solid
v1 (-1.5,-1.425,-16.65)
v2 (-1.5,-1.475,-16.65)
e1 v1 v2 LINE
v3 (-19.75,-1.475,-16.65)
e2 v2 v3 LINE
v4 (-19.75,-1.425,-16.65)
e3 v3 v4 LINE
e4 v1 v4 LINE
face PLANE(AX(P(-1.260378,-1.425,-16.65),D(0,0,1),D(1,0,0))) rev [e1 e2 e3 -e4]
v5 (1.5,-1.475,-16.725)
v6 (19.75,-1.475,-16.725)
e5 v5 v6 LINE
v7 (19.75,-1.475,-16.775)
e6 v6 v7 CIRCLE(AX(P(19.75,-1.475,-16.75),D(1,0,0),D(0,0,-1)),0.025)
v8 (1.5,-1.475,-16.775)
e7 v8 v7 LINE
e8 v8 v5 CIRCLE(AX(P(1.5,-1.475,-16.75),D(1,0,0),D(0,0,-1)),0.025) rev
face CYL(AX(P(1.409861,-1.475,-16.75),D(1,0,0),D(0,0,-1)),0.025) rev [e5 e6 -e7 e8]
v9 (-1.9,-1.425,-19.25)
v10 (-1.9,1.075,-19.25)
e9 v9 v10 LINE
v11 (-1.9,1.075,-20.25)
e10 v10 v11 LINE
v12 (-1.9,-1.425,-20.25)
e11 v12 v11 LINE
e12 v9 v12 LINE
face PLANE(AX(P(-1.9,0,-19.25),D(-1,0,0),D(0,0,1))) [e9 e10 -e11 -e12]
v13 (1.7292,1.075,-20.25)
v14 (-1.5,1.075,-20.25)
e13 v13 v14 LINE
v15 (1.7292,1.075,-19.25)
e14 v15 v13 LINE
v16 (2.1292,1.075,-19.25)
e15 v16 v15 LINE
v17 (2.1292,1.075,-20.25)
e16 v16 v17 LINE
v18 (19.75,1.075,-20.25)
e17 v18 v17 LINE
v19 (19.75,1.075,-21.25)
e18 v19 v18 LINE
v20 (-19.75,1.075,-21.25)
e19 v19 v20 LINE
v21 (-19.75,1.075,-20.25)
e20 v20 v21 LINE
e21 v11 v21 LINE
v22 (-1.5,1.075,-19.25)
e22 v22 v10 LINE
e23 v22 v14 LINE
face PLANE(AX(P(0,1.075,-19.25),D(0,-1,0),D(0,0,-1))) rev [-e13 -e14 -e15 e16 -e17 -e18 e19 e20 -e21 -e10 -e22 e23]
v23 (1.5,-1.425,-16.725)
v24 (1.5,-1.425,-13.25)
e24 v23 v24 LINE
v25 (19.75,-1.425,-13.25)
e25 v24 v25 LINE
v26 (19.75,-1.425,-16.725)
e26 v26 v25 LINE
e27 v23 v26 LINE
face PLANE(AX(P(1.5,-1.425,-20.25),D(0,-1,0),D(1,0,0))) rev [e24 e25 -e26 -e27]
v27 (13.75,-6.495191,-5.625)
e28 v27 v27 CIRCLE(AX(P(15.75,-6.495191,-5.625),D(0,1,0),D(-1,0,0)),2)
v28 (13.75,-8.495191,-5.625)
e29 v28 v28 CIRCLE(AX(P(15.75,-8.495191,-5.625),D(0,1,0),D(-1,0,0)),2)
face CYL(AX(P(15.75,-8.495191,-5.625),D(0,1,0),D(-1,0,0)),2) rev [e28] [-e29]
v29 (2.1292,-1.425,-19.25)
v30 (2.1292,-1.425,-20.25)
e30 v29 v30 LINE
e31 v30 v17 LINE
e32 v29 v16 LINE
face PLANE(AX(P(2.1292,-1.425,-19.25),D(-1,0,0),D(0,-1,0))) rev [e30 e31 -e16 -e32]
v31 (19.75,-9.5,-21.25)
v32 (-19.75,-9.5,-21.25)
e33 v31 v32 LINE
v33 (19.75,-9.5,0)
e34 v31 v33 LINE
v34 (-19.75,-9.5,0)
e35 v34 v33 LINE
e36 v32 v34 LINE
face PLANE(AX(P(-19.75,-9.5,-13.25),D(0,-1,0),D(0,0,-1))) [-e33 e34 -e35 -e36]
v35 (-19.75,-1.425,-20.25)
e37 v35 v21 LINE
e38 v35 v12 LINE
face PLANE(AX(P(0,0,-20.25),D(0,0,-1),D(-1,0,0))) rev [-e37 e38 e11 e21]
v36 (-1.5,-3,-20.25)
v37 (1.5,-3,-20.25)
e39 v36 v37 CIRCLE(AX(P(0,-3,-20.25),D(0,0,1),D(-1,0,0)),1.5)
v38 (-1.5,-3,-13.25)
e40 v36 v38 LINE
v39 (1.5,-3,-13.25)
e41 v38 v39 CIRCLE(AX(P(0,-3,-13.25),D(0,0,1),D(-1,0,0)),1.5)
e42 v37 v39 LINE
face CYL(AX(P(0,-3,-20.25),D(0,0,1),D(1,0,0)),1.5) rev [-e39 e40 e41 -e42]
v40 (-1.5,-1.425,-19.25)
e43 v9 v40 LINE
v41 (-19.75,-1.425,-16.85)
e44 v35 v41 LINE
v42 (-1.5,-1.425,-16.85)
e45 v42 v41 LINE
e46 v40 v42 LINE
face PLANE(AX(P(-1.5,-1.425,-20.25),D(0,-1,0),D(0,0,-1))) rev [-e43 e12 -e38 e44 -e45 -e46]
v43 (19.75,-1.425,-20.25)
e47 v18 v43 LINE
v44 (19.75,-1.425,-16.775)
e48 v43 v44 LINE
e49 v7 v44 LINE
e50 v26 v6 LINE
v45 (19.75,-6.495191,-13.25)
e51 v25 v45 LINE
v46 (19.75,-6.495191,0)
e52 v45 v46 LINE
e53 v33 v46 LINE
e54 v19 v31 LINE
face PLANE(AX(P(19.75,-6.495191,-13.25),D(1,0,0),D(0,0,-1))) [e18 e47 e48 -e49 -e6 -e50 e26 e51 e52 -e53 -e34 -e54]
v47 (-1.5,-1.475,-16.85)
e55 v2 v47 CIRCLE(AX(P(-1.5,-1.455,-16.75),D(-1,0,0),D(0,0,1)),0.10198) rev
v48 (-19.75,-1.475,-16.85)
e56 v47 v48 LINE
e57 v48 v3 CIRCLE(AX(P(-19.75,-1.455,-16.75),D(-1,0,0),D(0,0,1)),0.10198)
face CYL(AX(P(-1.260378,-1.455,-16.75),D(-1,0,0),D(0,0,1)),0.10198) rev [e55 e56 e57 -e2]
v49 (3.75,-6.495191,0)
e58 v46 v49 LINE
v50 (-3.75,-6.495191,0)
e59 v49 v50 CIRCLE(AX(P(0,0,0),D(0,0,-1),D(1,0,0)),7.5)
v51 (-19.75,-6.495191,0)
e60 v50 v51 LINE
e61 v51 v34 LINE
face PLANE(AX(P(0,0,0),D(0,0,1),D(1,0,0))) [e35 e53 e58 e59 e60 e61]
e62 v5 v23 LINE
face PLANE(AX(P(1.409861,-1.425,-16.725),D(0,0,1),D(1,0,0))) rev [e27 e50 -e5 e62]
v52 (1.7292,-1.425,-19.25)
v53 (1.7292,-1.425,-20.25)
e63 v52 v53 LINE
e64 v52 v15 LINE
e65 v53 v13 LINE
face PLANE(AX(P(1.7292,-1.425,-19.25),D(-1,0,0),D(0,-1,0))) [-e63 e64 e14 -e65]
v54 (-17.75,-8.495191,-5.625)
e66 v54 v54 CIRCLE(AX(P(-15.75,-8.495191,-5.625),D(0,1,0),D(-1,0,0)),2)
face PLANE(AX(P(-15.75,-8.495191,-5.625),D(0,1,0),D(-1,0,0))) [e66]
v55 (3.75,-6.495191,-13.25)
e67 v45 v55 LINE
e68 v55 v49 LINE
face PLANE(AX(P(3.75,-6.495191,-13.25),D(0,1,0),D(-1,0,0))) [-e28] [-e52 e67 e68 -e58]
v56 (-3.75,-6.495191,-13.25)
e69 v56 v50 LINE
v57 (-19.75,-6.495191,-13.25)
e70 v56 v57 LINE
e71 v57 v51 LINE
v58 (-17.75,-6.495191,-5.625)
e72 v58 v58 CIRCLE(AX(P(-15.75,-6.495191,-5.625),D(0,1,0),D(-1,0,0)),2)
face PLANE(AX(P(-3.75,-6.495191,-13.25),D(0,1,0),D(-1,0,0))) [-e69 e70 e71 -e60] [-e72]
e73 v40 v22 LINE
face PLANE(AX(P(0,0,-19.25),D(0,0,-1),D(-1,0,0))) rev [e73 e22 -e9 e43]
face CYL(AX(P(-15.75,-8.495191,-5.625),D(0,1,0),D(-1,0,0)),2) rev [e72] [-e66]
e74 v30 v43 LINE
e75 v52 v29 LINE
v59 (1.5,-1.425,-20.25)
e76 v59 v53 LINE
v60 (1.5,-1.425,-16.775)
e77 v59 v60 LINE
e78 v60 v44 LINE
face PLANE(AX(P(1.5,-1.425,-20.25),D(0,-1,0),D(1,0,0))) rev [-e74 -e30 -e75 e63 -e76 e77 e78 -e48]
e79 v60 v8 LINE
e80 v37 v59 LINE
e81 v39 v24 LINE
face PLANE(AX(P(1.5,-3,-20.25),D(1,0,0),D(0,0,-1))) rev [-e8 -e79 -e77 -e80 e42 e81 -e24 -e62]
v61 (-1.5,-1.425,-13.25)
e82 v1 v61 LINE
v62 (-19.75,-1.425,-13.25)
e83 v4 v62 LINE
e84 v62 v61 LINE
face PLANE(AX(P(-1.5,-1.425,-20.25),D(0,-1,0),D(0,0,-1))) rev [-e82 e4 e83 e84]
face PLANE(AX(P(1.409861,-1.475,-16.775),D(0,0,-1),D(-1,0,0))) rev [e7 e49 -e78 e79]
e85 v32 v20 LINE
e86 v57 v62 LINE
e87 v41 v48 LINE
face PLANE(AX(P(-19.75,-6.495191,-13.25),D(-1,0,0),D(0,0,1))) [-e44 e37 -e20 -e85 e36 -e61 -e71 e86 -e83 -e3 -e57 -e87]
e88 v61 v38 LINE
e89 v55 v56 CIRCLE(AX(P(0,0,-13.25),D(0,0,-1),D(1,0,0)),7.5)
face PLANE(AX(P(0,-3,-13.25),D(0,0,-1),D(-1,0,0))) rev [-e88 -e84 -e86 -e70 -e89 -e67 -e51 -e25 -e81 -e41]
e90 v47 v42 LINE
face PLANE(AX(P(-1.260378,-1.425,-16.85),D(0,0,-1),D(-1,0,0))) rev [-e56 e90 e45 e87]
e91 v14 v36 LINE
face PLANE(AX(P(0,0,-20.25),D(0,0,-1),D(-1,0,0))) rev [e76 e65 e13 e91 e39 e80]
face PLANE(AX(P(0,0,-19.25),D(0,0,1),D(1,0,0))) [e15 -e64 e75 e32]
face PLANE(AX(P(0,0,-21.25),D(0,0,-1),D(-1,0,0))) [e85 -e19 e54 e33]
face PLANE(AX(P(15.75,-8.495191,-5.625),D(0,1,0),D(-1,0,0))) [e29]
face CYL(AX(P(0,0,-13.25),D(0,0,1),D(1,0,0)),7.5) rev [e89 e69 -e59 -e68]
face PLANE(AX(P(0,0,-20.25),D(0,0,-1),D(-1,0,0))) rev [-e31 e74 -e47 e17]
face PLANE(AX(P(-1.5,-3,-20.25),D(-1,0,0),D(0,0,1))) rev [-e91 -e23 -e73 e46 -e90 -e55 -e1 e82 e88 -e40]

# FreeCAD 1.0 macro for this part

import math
import FreeCAD as App
import Part
import Sketcher
Q = App.Units.Quantity

doc = App.newDocument("Part")
body = doc.addObject("PartDesign::Body", "Body")

sketch1 = body.newObject("Sketcher::SketchObject", "Sketch")
sketch1.AttachmentSupport = (doc.getObject("XY_Plane"), [""])
sketch1.MapMode = "FlatFace"
sketch1.addGeometry(Part.LineSegment(App.Vector(-19.8, -9.5, 0), App.Vector(19.8, -9.5, 0)), False)
sketch1.addGeometry(Part.LineSegment(App.Vector(19.8, -9.5, 0), App.Vector(19.8, -6.5, 0)), False)
sketch1.addGeometry(Part.LineSegment(App.Vector(19.8, -6.5, 0), App.Vector(3.8, -6.5, 0)), False)
sketch1.addGeometry(Part.ArcOfCircle(Part.Circle(App.Vector(0, 0, 0), App.Vector(0, 0, 1), 7.5), math.radians(-120), math.radians(-60)), False)
sketch1.addGeometry(Part.LineSegment(App.Vector(-3.8, -6.5, 0), App.Vector(-19.8, -6.5, 0)), False)
sketch1.addGeometry(Part.LineSegment(App.Vector(-19.8, -6.5, 0), App.Vector(-19.8, -9.5, 0)), False)
sketch1.addConstraint(Sketcher.Constraint("Coincident", 0, 2, 1, 1))
sketch1.addConstraint(Sketcher.Constraint("Coincident", 1, 2, 2, 1))
sketch1.addConstraint(Sketcher.Constraint("Coincident", 2, 2, 3, 2))
sketch1.addConstraint(Sketcher.Constraint("Coincident", 3, 1, 4, 1))
sketch1.addConstraint(Sketcher.Constraint("Coincident", 4, 2, 5, 1))
sketch1.addConstraint(Sketcher.Constraint("Coincident", 5, 2, 0, 1))
sketch1.addConstraint(Sketcher.Constraint("Horizontal", 0))
sketch1.addConstraint(Sketcher.Constraint("Vertical", 1))
sketch1.addConstraint(Sketcher.Constraint("Horizontal", 2))
sketch1.addConstraint(Sketcher.Constraint("Horizontal", 4))
sketch1.addConstraint(Sketcher.Constraint("Vertical", 5))
sketch1.addConstraint(Sketcher.Constraint("Coincident", 3, 3, -1, 1))
sketch1.addConstraint(Sketcher.Constraint("Symmetric", 1, 2, 4, 2, -2))
sketch1.addConstraint(Sketcher.Constraint("Radius", 3, Q("7.5 mm")))
sketch1.addConstraint(Sketcher.Constraint("DistanceX", 2, 2, 2, 1, Q("16 mm")))
sketch1.addConstraint(Sketcher.Constraint("DistanceX", 0, 1, 0, 2, Q("39.5 mm")))
sketch1.addConstraint(Sketcher.Constraint("DistanceY", 0, 2, -1, 1, Q("9.5 mm")))
pad1 = body.newObject("PartDesign::Pad", "Pad")
pad1.Profile = sketch1
pad1.Length = 13.25
pad1.Reversed = True

sketch2 = body.newObject("Sketcher::SketchObject", "Sketch001")
sketch2.AttachmentSupport = (doc.getObject("XY_Plane"), [""])
sketch2.MapMode = "FlatFace"
sketch2.AttachmentOffset = App.Placement(App.Vector(0, 0, -13.25), App.Rotation())
sketch2.addGeometry(Part.LineSegment(App.Vector(19.8, -9.5, 0), App.Vector(-19.8, -9.5, 0)), False)
sketch2.addGeometry(Part.LineSegment(App.Vector(-19.8, -9.5, 0), App.Vector(-19.8, -1.4, 0)), False)
sketch2.addGeometry(Part.LineSegment(App.Vector(-19.8, -1.4, 0), App.Vector(-1.5, -1.4, 0)), False)
sketch2.addGeometry(Part.LineSegment(App.Vector(-1.5, -1.4, 0), App.Vector(-1.5, -3, 0)), False)
sketch2.addGeometry(Part.ArcOfCircle(Part.Circle(App.Vector(0, -3, 0), App.Vector(0, 0, 1), 1.5), math.radians(180), math.radians(360)), False)
sketch2.addGeometry(Part.LineSegment(App.Vector(1.5, -3, 0), App.Vector(1.5, -1.4, 0)), False)
sketch2.addGeometry(Part.LineSegment(App.Vector(1.5, -1.4, 0), App.Vector(19.8, -1.4, 0)), False)
sketch2.addGeometry(Part.LineSegment(App.Vector(19.8, -1.4, 0), App.Vector(19.8, -9.5, 0)), False)
sketch2.addConstraint(Sketcher.Constraint("Coincident", 0, 2, 1, 1))
sketch2.addConstraint(Sketcher.Constraint("Coincident", 1, 2, 2, 1))
sketch2.addConstraint(Sketcher.Constraint("Coincident", 2, 2, 3, 1))
sketch2.addConstraint(Sketcher.Constraint("Tangent", 3, 2, 4, 1))
sketch2.addConstraint(Sketcher.Constraint("Tangent", 4, 2, 5, 1))
sketch2.addConstraint(Sketcher.Constraint("Coincident", 5, 2, 6, 1))
sketch2.addConstraint(Sketcher.Constraint("Coincident", 6, 2, 7, 1))
sketch2.addConstraint(Sketcher.Constraint("Coincident", 7, 2, 0, 1))
sketch2.addConstraint(Sketcher.Constraint("Horizontal", 0))
sketch2.addConstraint(Sketcher.Constraint("Vertical", 1))
sketch2.addConstraint(Sketcher.Constraint("Horizontal", 2))
sketch2.addConstraint(Sketcher.Constraint("Vertical", 3))
sketch2.addConstraint(Sketcher.Constraint("Vertical", 5))
sketch2.addConstraint(Sketcher.Constraint("Horizontal", 6))
sketch2.addConstraint(Sketcher.Constraint("Vertical", 7))
sketch2.addConstraint(Sketcher.Constraint("Symmetric", 2, 2, 5, 2, -2))
sketch2.addConstraint(Sketcher.Constraint("Equal", 2, 6))
sketch2.addConstraint(Sketcher.Constraint("Radius", 4, Q("1.5 mm")))
sketch2.addConstraint(Sketcher.Constraint("DistanceX", 0, 2, 0, 1, Q("39.5 mm")))
sketch2.addConstraint(Sketcher.Constraint("DistanceY", 4, 3, -1, 1, Q("3 mm")))
sketch2.addConstraint(Sketcher.Constraint("DistanceY", 0, 2, -1, 1, Q("9.5 mm")))
sketch2.addConstraint(Sketcher.Constraint("DistanceY", 1, 1, 1, 2, Q("8.075 mm")))
pad2 = body.newObject("PartDesign::Pad", "Pad001")
pad2.Profile = sketch2
pad2.Length = 7
pad2.Reversed = True

sketch3 = body.newObject("Sketcher::SketchObject", "Sketch002")
sketch3.AttachmentSupport = (doc.getObject("XY_Plane"), [""])
sketch3.MapMode = "FlatFace"
sketch3.AttachmentOffset = App.Placement(App.Vector(0, 0, -20.25), App.Rotation())
sketch3.addGeometry(Part.LineSegment(App.Vector(-1.5, 1.07, 0), App.Vector(-1.5, -1.43, 0)), False)
sketch3.addGeometry(Part.LineSegment(App.Vector(-1.5, -1.43, 0), App.Vector(-1.9, -1.43, 0)), False)
sketch3.addGeometry(Part.LineSegment(App.Vector(-1.9, -1.43, 0), App.Vector(-1.9, 1.07, 0)), False)
sketch3.addGeometry(Part.LineSegment(App.Vector(-1.9, 1.07, 0), App.Vector(-1.5, 1.07, 0)), False)
sketch3.addGeometry(Part.LineSegment(App.Vector(2.13, 1.07, 0), App.Vector(2.13, -1.43, 0)), False)
sketch3.addGeometry(Part.LineSegment(App.Vector(2.13, -1.43, 0), App.Vector(1.73, -1.43, 0)), False)
sketch3.addGeometry(Part.LineSegment(App.Vector(1.73, -1.43, 0), App.Vector(1.73, 1.07, 0)), False)
sketch3.addGeometry(Part.LineSegment(App.Vector(1.73, 1.07, 0), App.Vector(2.13, 1.07, 0)), False)
sketch3.addConstraint(Sketcher.Constraint("Coincident", 0, 2, 1, 1))
sketch3.addConstraint(Sketcher.Constraint("Coincident", 1, 2, 2, 1))
sketch3.addConstraint(Sketcher.Constraint("Coincident", 2, 2, 3, 1))
sketch3.addConstraint(Sketcher.Constraint("Coincident", 3, 2, 0, 1))
sketch3.addConstraint(Sketcher.Constraint("Coincident", 4, 2, 5, 1))
sketch3.addConstraint(Sketcher.Constraint("Coincident", 5, 2, 6, 1))
sketch3.addConstraint(Sketcher.Constraint("Coincident", 6, 2, 7, 1))
sketch3.addConstraint(Sketcher.Constraint("Coincident", 7, 2, 4, 1))
sketch3.addConstraint(Sketcher.Constraint("Vertical", 0))
sketch3.addConstraint(Sketcher.Constraint("Horizontal", 1))
sketch3.addConstraint(Sketcher.Constraint("Vertical", 2))
sketch3.addConstraint(Sketcher.Constraint("Horizontal", 3))
sketch3.addConstraint(Sketcher.Constraint("Vertical", 4))
sketch3.addConstraint(Sketcher.Constraint("Horizontal", 5))
sketch3.addConstraint(Sketcher.Constraint("Vertical", 6))
sketch3.addConstraint(Sketcher.Constraint("Horizontal", 7))
sketch3.addConstraint(Sketcher.Constraint("Horizontal", 1, 2, 4, 2))
sketch3.addConstraint(Sketcher.Constraint("Horizontal", 3, 2, 6, 2))
sketch3.addConstraint(Sketcher.Constraint("Equal", 3, 5))
sketch3.addConstraint(Sketcher.Constraint("DistanceX", 1, 2, 1, 1, Q("0.4 mm")))
sketch3.addConstraint(Sketcher.Constraint("DistanceY", 0, 2, 0, 1, Q("2.5 mm")))
sketch3.addConstraint(Sketcher.Constraint("DistanceX", 0, 2, -1, 1, Q("1.5 mm")))
sketch3.addConstraint(Sketcher.Constraint("DistanceY", 0, 2, -1, 1, Q("1.425 mm")))
sketch3.addConstraint(Sketcher.Constraint("DistanceX", -1, 1, 4, 2, Q("2.1292 mm")))
pad3 = body.newObject("PartDesign::Pad", "Pad002")
pad3.Profile = sketch3
pad3.Length = 1

sketch4 = body.newObject("Sketcher::SketchObject", "Sketch003")
sketch4.AttachmentSupport = (doc.getObject("XY_Plane"), [""])
sketch4.MapMode = "FlatFace"
sketch4.AttachmentOffset = App.Placement(App.Vector(0, 0, -20.25), App.Rotation())
sketch4.addGeometry(Part.LineSegment(App.Vector(20, 1, 0), App.Vector(20, -10, 0)), False)
sketch4.addGeometry(Part.LineSegment(App.Vector(20, -10, 0), App.Vector(-20, -10, 0)), False)
sketch4.addGeometry(Part.LineSegment(App.Vector(-20, -10, 0), App.Vector(-20, 1, 0)), False)
sketch4.addGeometry(Part.LineSegment(App.Vector(-20, 1, 0), App.Vector(20, 1, 0)), False)
sketch4.addConstraint(Sketcher.Constraint("Coincident", 0, 2, 1, 1))
sketch4.addConstraint(Sketcher.Constraint("Coincident", 1, 2, 2, 1))
sketch4.addConstraint(Sketcher.Constraint("Coincident", 2, 2, 3, 1))
sketch4.addConstraint(Sketcher.Constraint("Coincident", 3, 2, 0, 1))
sketch4.addConstraint(Sketcher.Constraint("Vertical", 0))
sketch4.addConstraint(Sketcher.Constraint("Horizontal", 1))
sketch4.addConstraint(Sketcher.Constraint("Vertical", 2))
sketch4.addConstraint(Sketcher.Constraint("Horizontal", 3))
sketch4.addConstraint(Sketcher.Constraint("DistanceX", 1, 2, 1, 1, Q("39.5 mm")))
sketch4.addConstraint(Sketcher.Constraint("DistanceY", 0, 2, -1, 1, Q("9.5 mm")))
sketch4.addConstraint(Sketcher.Constraint("DistanceY", 0, 2, 0, 1, Q("10.575 mm")))
sketch4.addConstraint(Sketcher.Constraint("DistanceX", -1, 1, 0, 2, Q("19.75 mm")))
pad4 = body.newObject("PartDesign::Pad", "Pad003")
pad4.Profile = sketch4
pad4.Length = 1
pad4.Reversed = True

sketch5 = body.newObject("Sketcher::SketchObject", "Sketch004")
sketch5.AttachmentSupport = (doc.getObject("YZ_Plane"), [""])
sketch5.MapMode = "FlatFace"
sketch5.AttachmentOffset = App.Placement(App.Vector(0, 0, 19.75), App.Rotation())
sketch5.addGeometry(Part.LineSegment(App.Vector(-1.425, -16.775, 0), App.Vector(-1.425, -16.725, 0)), False)
sketch5.addGeometry(Part.LineSegment(App.Vector(-1.425, -16.725, 0), App.Vector(-1.475, -16.725, 0)), False)
sketch5.addGeometry(Part.ArcOfCircle(Part.Circle(App.Vector(-1.475, -16.75, 0), App.Vector(0, 0, 1), 0.025), math.radians(90), math.radians(270)), False)
sketch5.addGeometry(Part.LineSegment(App.Vector(-1.475, -16.775, 0), App.Vector(-1.425, -16.775, 0)), False)
sketch5.addConstraint(Sketcher.Constraint("Coincident", 0, 2, 1, 1))
sketch5.addConstraint(Sketcher.Constraint("Tangent", 1, 2, 2, 1))
sketch5.addConstraint(Sketcher.Constraint("Tangent", 2, 2, 3, 1))
sketch5.addConstraint(Sketcher.Constraint("Coincident", 3, 2, 0, 1))
sketch5.addConstraint(Sketcher.Constraint("Vertical", 0))
sketch5.addConstraint(Sketcher.Constraint("Horizontal", 1))
sketch5.addConstraint(Sketcher.Constraint("Horizontal", 3))
sketch5.addConstraint(Sketcher.Constraint("Equal", 3, 0))
sketch5.addConstraint(Sketcher.Constraint("Radius", 2, Q("0.025 mm")))
sketch5.addConstraint(Sketcher.Constraint("DistanceY", 2, 3, -1, 1, Q("16.75 mm")))
sketch5.addConstraint(Sketcher.Constraint("DistanceX", 2, 3, -1, 1, Q("1.475 mm")))
pocket1 = body.newObject("PartDesign::Pocket", "Pocket")
pocket1.Profile = sketch5
pocket1.Length = 18.25

sketch6 = body.newObject("Sketcher::SketchObject", "Sketch005")
sketch6.AttachmentSupport = (doc.getObject("YZ_Plane"), [""])
sketch6.MapMode = "FlatFace"
sketch6.AttachmentOffset = App.Placement(App.Vector(0, 0, -19.75), App.Rotation())
sketch6.addGeometry(Part.LineSegment(App.Vector(-1.43, -16.85, 0), App.Vector(-1.48, -16.85, 0)), False)
sketch6.addGeometry(Part.ArcOfCircle(Part.Circle(App.Vector(-1.46, -16.75, 0), App.Vector(0, 0, 1), 0.1), math.radians(101), math.radians(259)), False)
sketch6.addGeometry(Part.LineSegment(App.Vector(-1.48, -16.65, 0), App.Vector(-1.43, -16.65, 0)), False)
sketch6.addGeometry(Part.LineSegment(App.Vector(-1.43, -16.65, 0), App.Vector(-1.43, -16.85, 0)), False)
sketch6.addConstraint(Sketcher.Constraint("Coincident", 0, 2, 1, 2))
sketch6.addConstraint(Sketcher.Constraint("Coincident", 1, 1, 2, 1))
sketch6.addConstraint(Sketcher.Constraint("Coincident", 2, 2, 3, 1))
sketch6.addConstraint(Sketcher.Constraint("Coincident", 3, 2, 0, 1))
sketch6.addConstraint(Sketcher.Constraint("Horizontal", 0))
sketch6.addConstraint(Sketcher.Constraint("Horizontal", 2))
sketch6.addConstraint(Sketcher.Constraint("Vertical", 3))
sketch6.addConstraint(Sketcher.Constraint("Vertical", 0, 2, 1, 1))
sketch6.addConstraint(Sketcher.Constraint("DistanceY", 3, 2, 3, 1, Q("0.2 mm")))
sketch6.addConstraint(Sketcher.Constraint("DistanceX", 0, 2, 0, 1, Q("0.05 mm")))
sketch6.addConstraint(Sketcher.Constraint("DistanceY", 1, 3, -1, 1, Q("16.75 mm")))
sketch6.addConstraint(Sketcher.Constraint("Radius", 1, Q("0.10198 mm")))
sketch6.addConstraint(Sketcher.Constraint("DistanceX", 1, 3, -1, 1, Q("1.455 mm")))
pocket2 = body.newObject("PartDesign::Pocket", "Pocket001")
pocket2.Profile = sketch6
pocket2.Length = 18.25
pocket2.Reversed = True

sketch7 = body.newObject("Sketcher::SketchObject", "Sketch006")
sketch7.AttachmentSupport = (doc.getObject("XZ_Plane"), [""])
sketch7.MapMode = "FlatFace"
sketch7.AttachmentOffset = App.Placement(App.Vector(0, 0, 6.495191), App.Rotation())
sketch7.addGeometry(Part.Circle(App.Vector(-15.8, -5.6, 0), App.Vector(0, 0, 1), 2), False)
sketch7.addGeometry(Part.Circle(App.Vector(15.8, -5.6, 0), App.Vector(0, 0, 1), 2), False)
sketch7.addConstraint(Sketcher.Constraint("Equal", 0, 1))
sketch7.addConstraint(Sketcher.Constraint("Symmetric", 0, 3, 1, 3, -2))
sketch7.addConstraint(Sketcher.Constraint("Diameter", 0, Q("4 mm")))
sketch7.addConstraint(Sketcher.Constraint("DistanceX", 0, 3, 1, 3, Q("31.5 mm")))
sketch7.addConstraint(Sketcher.Constraint("DistanceY", 0, 3, -1, 1, Q("5.625 mm")))
pocket3 = body.newObject("PartDesign::Pocket", "Pocket002")
pocket3.Profile = sketch7
pocket3.Length = 2
pocket3.Reversed = True

doc.recompute()
